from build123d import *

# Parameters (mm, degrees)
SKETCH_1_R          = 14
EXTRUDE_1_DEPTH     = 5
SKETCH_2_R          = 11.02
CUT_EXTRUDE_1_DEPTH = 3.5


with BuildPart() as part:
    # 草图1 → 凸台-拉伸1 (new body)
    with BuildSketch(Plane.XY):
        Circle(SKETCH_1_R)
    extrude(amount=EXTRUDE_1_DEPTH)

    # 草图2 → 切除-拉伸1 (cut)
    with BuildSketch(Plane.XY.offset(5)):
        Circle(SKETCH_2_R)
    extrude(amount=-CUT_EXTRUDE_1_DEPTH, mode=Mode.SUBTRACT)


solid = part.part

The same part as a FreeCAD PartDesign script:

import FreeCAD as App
import Part
import Sketcher

V = App.Vector

doc = App.newDocument("Part")
body = doc.addObject("PartDesign::Body", "Body")

# Sketch on XY plane
sketch1 = doc.addObject("Sketcher::SketchObject", "Sketch")
body.addObject(sketch1)
sketch1.AttachmentSupport = (doc.XY_Plane, [""])
sketch1.MapMode = "FlatFace"
sketch1.addGeometry(Part.Circle(V(0, 0, 0), V(0, 0, 1), 14), False)
sketch1.addConstraint(Sketcher.Constraint("Coincident", 0, 3, -1, 1))
sketch1.addConstraint(Sketcher.Constraint("Diameter", 0, 28.0))
pad1 = doc.addObject("PartDesign::Pad", "Pad")
body.addObject(pad1)
pad1.Profile = sketch1
pad1.Length = 5

# Sketch on XY plane
sketch2 = doc.addObject("Sketcher::SketchObject", "Sketch001")
body.addObject(sketch2)
sketch2.AttachmentSupport = (doc.XY_Plane, [""])
sketch2.MapMode = "FlatFace"
sketch2.AttachmentOffset = App.Placement(V(0, 0, 5), App.Rotation())
sketch2.addGeometry(Part.Circle(V(0, 0, 0), V(0, 0, 1), 11), False)
sketch2.addConstraint(Sketcher.Constraint("Coincident", 0, 3, -1, 1))
sketch2.addConstraint(Sketcher.Constraint("Diameter", 0, 22.04))
pocket1 = doc.addObject("PartDesign::Pocket", "Pocket")
body.addObject(pocket1)
pocket1.Profile = sketch2
pocket1.Length = 3.5

doc.recompute()
